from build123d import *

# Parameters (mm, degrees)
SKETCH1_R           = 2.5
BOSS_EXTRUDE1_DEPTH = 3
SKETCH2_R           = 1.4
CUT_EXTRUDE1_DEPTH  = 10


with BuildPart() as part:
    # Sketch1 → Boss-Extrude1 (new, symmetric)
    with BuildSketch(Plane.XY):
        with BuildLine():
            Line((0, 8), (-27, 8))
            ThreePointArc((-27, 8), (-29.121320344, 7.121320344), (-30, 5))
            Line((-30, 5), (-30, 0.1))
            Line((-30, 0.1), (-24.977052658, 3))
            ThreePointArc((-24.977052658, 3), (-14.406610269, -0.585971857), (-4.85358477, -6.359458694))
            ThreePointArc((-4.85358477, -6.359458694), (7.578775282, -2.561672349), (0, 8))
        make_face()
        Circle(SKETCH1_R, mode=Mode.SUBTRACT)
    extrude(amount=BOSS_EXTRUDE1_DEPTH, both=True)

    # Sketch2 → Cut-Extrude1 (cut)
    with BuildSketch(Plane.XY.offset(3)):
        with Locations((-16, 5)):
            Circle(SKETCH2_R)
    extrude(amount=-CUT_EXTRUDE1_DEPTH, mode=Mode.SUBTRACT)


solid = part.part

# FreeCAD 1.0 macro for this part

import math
import FreeCAD as App
import Part
import Sketcher
Q = App.Units.Quantity

doc = App.newDocument("Part")
params = doc.addObject("Spreadsheet::Sheet", "Params")
for row, (alias, value) in enumerate([
    ("sketch1_diameter", "5 mm"),
    ("sketch1_radius", "3 mm"),
    ("sketch1_radius2", "8 mm"),
    ("sketch1_width", "27 mm"),
    ("sketch1_height", "4.9 mm"),
    ("pad1_length", "6 mm"),
    ("sketch2_diameter", "2.8 mm"),
    ("pocket1_length", "10 mm"),
], start=1):
    params.set(f"A{row}", alias)
    params.set(f"B{row}", "=" + value)
    params.setAlias(f"B{row}", alias)

body = doc.addObject("PartDesign::Body", "Body")

sketch1 = doc.addObject("Sketcher::SketchObject", "Sketch")
body.addObject(sketch1)
sketch1.AttachmentSupport = (doc.XY_Plane, [""])
sketch1.MapMode = "FlatFace"
sketch1.addGeometry([
    Part.LineSegment(App.Vector(0, 8, 0), App.Vector(-27, 8, 0)),
    Part.ArcOfCircle(Part.Circle(App.Vector(-27, 5, 0), App.Vector(0, 0, 1), 3), math.radians(90), math.radians(180)),
    Part.LineSegment(App.Vector(-30, 5, 0), App.Vector(-30, 0.1, 0)),
    Part.LineSegment(App.Vector(-30, 0.1, 0), App.Vector(-25, 3, 0)),
    Part.ArcOfCircle(Part.Circle(App.Vector(-36.2, -47.4, 0), App.Vector(0, 0, 1), 51.6), math.radians(53), math.radians(77)),
    Part.ArcOfCircle(Part.Circle(App.Vector(0, 0, 0), App.Vector(0, 0, 1), 8), math.radians(-127), math.radians(90)),
    Part.Circle(App.Vector(0, 0, 0), App.Vector(0, 0, 1), 2.5),
], False)
sketch1.addConstraint([
    Sketcher.Constraint("Tangent", 0, 2, 1, 1),
    Sketcher.Constraint("Tangent", 1, 2, 2, 1),
    Sketcher.Constraint("Coincident", 2, 2, 3, 1),
    Sketcher.Constraint("Coincident", 3, 2, 4, 2),
    Sketcher.Constraint("Tangent", 4, 1, 5, 1),
    Sketcher.Constraint("Tangent", 5, 2, 0, 1),
    Sketcher.Constraint("Horizontal", 0),
    Sketcher.Constraint("Vertical", 2),
    Sketcher.Constraint("Coincident", 5, 3, -1, 1),
    Sketcher.Constraint("Coincident", 6, 3, -1, 1),
    Sketcher.Constraint("Diameter", 6, Q("5 mm")),
    Sketcher.Constraint("Radius", 1, Q("3 mm")),
    Sketcher.Constraint("Radius", 5, Q("8 mm")),
    Sketcher.Constraint("DistanceX", 0, 2, 0, 1, Q("27 mm")),
    Sketcher.Constraint("Angle", 3, Q("30 deg")),
    Sketcher.Constraint("DistanceY", 2, 2, 2, 1, Q("4.9 mm")),
    Sketcher.Constraint("DistanceY", -1, 1, 3, 2, Q("3 mm")),
    Sketcher.Constraint("Radius", 4, Q("51.644053 mm")),
])
sketch1.setExpression("Constraints[10]", "Params.sketch1_diameter")
sketch1.setExpression("Constraints[11]", "Params.sketch1_radius")
sketch1.setExpression("Constraints[12]", "Params.sketch1_radius2")
sketch1.setExpression("Constraints[13]", "Params.sketch1_width")
sketch1.setExpression("Constraints[15]", "Params.sketch1_height")
pad1 = doc.addObject("PartDesign::Pad", "Pad")
body.addObject(pad1)
pad1.Profile = sketch1
pad1.setExpression("Length", "Params.pad1_length")
pad1.Midplane = True

sketch2 = doc.addObject("Sketcher::SketchObject", "Sketch001")
body.addObject(sketch2)
sketch2.AttachmentSupport = (doc.XY_Plane, [""])
sketch2.MapMode = "FlatFace"
sketch2.AttachmentOffset = App.Placement(App.Vector(0, 0, 3), App.Rotation())
sketch2.addGeometry(Part.Circle(App.Vector(-16, 5, 0), App.Vector(0, 0, 1), 1.4), False)
sketch2.addConstraint([
    Sketcher.Constraint("Diameter", 0, Q("2.8 mm")),
    Sketcher.Constraint("DistanceX", 0, 3, -1, 1, Q("16 mm")),
    Sketcher.Constraint("DistanceY", -1, 1, 0, 3, Q("5 mm")),
])
sketch2.setExpression("Constraints[0]", "Params.sketch2_diameter")
pocket1 = doc.addObject("PartDesign::Pocket", "Pocket")
body.addObject(pocket1)
pocket1.Profile = sketch2
pocket1.setExpression("Length", "Params.pocket1_length")

doc.recompute()
